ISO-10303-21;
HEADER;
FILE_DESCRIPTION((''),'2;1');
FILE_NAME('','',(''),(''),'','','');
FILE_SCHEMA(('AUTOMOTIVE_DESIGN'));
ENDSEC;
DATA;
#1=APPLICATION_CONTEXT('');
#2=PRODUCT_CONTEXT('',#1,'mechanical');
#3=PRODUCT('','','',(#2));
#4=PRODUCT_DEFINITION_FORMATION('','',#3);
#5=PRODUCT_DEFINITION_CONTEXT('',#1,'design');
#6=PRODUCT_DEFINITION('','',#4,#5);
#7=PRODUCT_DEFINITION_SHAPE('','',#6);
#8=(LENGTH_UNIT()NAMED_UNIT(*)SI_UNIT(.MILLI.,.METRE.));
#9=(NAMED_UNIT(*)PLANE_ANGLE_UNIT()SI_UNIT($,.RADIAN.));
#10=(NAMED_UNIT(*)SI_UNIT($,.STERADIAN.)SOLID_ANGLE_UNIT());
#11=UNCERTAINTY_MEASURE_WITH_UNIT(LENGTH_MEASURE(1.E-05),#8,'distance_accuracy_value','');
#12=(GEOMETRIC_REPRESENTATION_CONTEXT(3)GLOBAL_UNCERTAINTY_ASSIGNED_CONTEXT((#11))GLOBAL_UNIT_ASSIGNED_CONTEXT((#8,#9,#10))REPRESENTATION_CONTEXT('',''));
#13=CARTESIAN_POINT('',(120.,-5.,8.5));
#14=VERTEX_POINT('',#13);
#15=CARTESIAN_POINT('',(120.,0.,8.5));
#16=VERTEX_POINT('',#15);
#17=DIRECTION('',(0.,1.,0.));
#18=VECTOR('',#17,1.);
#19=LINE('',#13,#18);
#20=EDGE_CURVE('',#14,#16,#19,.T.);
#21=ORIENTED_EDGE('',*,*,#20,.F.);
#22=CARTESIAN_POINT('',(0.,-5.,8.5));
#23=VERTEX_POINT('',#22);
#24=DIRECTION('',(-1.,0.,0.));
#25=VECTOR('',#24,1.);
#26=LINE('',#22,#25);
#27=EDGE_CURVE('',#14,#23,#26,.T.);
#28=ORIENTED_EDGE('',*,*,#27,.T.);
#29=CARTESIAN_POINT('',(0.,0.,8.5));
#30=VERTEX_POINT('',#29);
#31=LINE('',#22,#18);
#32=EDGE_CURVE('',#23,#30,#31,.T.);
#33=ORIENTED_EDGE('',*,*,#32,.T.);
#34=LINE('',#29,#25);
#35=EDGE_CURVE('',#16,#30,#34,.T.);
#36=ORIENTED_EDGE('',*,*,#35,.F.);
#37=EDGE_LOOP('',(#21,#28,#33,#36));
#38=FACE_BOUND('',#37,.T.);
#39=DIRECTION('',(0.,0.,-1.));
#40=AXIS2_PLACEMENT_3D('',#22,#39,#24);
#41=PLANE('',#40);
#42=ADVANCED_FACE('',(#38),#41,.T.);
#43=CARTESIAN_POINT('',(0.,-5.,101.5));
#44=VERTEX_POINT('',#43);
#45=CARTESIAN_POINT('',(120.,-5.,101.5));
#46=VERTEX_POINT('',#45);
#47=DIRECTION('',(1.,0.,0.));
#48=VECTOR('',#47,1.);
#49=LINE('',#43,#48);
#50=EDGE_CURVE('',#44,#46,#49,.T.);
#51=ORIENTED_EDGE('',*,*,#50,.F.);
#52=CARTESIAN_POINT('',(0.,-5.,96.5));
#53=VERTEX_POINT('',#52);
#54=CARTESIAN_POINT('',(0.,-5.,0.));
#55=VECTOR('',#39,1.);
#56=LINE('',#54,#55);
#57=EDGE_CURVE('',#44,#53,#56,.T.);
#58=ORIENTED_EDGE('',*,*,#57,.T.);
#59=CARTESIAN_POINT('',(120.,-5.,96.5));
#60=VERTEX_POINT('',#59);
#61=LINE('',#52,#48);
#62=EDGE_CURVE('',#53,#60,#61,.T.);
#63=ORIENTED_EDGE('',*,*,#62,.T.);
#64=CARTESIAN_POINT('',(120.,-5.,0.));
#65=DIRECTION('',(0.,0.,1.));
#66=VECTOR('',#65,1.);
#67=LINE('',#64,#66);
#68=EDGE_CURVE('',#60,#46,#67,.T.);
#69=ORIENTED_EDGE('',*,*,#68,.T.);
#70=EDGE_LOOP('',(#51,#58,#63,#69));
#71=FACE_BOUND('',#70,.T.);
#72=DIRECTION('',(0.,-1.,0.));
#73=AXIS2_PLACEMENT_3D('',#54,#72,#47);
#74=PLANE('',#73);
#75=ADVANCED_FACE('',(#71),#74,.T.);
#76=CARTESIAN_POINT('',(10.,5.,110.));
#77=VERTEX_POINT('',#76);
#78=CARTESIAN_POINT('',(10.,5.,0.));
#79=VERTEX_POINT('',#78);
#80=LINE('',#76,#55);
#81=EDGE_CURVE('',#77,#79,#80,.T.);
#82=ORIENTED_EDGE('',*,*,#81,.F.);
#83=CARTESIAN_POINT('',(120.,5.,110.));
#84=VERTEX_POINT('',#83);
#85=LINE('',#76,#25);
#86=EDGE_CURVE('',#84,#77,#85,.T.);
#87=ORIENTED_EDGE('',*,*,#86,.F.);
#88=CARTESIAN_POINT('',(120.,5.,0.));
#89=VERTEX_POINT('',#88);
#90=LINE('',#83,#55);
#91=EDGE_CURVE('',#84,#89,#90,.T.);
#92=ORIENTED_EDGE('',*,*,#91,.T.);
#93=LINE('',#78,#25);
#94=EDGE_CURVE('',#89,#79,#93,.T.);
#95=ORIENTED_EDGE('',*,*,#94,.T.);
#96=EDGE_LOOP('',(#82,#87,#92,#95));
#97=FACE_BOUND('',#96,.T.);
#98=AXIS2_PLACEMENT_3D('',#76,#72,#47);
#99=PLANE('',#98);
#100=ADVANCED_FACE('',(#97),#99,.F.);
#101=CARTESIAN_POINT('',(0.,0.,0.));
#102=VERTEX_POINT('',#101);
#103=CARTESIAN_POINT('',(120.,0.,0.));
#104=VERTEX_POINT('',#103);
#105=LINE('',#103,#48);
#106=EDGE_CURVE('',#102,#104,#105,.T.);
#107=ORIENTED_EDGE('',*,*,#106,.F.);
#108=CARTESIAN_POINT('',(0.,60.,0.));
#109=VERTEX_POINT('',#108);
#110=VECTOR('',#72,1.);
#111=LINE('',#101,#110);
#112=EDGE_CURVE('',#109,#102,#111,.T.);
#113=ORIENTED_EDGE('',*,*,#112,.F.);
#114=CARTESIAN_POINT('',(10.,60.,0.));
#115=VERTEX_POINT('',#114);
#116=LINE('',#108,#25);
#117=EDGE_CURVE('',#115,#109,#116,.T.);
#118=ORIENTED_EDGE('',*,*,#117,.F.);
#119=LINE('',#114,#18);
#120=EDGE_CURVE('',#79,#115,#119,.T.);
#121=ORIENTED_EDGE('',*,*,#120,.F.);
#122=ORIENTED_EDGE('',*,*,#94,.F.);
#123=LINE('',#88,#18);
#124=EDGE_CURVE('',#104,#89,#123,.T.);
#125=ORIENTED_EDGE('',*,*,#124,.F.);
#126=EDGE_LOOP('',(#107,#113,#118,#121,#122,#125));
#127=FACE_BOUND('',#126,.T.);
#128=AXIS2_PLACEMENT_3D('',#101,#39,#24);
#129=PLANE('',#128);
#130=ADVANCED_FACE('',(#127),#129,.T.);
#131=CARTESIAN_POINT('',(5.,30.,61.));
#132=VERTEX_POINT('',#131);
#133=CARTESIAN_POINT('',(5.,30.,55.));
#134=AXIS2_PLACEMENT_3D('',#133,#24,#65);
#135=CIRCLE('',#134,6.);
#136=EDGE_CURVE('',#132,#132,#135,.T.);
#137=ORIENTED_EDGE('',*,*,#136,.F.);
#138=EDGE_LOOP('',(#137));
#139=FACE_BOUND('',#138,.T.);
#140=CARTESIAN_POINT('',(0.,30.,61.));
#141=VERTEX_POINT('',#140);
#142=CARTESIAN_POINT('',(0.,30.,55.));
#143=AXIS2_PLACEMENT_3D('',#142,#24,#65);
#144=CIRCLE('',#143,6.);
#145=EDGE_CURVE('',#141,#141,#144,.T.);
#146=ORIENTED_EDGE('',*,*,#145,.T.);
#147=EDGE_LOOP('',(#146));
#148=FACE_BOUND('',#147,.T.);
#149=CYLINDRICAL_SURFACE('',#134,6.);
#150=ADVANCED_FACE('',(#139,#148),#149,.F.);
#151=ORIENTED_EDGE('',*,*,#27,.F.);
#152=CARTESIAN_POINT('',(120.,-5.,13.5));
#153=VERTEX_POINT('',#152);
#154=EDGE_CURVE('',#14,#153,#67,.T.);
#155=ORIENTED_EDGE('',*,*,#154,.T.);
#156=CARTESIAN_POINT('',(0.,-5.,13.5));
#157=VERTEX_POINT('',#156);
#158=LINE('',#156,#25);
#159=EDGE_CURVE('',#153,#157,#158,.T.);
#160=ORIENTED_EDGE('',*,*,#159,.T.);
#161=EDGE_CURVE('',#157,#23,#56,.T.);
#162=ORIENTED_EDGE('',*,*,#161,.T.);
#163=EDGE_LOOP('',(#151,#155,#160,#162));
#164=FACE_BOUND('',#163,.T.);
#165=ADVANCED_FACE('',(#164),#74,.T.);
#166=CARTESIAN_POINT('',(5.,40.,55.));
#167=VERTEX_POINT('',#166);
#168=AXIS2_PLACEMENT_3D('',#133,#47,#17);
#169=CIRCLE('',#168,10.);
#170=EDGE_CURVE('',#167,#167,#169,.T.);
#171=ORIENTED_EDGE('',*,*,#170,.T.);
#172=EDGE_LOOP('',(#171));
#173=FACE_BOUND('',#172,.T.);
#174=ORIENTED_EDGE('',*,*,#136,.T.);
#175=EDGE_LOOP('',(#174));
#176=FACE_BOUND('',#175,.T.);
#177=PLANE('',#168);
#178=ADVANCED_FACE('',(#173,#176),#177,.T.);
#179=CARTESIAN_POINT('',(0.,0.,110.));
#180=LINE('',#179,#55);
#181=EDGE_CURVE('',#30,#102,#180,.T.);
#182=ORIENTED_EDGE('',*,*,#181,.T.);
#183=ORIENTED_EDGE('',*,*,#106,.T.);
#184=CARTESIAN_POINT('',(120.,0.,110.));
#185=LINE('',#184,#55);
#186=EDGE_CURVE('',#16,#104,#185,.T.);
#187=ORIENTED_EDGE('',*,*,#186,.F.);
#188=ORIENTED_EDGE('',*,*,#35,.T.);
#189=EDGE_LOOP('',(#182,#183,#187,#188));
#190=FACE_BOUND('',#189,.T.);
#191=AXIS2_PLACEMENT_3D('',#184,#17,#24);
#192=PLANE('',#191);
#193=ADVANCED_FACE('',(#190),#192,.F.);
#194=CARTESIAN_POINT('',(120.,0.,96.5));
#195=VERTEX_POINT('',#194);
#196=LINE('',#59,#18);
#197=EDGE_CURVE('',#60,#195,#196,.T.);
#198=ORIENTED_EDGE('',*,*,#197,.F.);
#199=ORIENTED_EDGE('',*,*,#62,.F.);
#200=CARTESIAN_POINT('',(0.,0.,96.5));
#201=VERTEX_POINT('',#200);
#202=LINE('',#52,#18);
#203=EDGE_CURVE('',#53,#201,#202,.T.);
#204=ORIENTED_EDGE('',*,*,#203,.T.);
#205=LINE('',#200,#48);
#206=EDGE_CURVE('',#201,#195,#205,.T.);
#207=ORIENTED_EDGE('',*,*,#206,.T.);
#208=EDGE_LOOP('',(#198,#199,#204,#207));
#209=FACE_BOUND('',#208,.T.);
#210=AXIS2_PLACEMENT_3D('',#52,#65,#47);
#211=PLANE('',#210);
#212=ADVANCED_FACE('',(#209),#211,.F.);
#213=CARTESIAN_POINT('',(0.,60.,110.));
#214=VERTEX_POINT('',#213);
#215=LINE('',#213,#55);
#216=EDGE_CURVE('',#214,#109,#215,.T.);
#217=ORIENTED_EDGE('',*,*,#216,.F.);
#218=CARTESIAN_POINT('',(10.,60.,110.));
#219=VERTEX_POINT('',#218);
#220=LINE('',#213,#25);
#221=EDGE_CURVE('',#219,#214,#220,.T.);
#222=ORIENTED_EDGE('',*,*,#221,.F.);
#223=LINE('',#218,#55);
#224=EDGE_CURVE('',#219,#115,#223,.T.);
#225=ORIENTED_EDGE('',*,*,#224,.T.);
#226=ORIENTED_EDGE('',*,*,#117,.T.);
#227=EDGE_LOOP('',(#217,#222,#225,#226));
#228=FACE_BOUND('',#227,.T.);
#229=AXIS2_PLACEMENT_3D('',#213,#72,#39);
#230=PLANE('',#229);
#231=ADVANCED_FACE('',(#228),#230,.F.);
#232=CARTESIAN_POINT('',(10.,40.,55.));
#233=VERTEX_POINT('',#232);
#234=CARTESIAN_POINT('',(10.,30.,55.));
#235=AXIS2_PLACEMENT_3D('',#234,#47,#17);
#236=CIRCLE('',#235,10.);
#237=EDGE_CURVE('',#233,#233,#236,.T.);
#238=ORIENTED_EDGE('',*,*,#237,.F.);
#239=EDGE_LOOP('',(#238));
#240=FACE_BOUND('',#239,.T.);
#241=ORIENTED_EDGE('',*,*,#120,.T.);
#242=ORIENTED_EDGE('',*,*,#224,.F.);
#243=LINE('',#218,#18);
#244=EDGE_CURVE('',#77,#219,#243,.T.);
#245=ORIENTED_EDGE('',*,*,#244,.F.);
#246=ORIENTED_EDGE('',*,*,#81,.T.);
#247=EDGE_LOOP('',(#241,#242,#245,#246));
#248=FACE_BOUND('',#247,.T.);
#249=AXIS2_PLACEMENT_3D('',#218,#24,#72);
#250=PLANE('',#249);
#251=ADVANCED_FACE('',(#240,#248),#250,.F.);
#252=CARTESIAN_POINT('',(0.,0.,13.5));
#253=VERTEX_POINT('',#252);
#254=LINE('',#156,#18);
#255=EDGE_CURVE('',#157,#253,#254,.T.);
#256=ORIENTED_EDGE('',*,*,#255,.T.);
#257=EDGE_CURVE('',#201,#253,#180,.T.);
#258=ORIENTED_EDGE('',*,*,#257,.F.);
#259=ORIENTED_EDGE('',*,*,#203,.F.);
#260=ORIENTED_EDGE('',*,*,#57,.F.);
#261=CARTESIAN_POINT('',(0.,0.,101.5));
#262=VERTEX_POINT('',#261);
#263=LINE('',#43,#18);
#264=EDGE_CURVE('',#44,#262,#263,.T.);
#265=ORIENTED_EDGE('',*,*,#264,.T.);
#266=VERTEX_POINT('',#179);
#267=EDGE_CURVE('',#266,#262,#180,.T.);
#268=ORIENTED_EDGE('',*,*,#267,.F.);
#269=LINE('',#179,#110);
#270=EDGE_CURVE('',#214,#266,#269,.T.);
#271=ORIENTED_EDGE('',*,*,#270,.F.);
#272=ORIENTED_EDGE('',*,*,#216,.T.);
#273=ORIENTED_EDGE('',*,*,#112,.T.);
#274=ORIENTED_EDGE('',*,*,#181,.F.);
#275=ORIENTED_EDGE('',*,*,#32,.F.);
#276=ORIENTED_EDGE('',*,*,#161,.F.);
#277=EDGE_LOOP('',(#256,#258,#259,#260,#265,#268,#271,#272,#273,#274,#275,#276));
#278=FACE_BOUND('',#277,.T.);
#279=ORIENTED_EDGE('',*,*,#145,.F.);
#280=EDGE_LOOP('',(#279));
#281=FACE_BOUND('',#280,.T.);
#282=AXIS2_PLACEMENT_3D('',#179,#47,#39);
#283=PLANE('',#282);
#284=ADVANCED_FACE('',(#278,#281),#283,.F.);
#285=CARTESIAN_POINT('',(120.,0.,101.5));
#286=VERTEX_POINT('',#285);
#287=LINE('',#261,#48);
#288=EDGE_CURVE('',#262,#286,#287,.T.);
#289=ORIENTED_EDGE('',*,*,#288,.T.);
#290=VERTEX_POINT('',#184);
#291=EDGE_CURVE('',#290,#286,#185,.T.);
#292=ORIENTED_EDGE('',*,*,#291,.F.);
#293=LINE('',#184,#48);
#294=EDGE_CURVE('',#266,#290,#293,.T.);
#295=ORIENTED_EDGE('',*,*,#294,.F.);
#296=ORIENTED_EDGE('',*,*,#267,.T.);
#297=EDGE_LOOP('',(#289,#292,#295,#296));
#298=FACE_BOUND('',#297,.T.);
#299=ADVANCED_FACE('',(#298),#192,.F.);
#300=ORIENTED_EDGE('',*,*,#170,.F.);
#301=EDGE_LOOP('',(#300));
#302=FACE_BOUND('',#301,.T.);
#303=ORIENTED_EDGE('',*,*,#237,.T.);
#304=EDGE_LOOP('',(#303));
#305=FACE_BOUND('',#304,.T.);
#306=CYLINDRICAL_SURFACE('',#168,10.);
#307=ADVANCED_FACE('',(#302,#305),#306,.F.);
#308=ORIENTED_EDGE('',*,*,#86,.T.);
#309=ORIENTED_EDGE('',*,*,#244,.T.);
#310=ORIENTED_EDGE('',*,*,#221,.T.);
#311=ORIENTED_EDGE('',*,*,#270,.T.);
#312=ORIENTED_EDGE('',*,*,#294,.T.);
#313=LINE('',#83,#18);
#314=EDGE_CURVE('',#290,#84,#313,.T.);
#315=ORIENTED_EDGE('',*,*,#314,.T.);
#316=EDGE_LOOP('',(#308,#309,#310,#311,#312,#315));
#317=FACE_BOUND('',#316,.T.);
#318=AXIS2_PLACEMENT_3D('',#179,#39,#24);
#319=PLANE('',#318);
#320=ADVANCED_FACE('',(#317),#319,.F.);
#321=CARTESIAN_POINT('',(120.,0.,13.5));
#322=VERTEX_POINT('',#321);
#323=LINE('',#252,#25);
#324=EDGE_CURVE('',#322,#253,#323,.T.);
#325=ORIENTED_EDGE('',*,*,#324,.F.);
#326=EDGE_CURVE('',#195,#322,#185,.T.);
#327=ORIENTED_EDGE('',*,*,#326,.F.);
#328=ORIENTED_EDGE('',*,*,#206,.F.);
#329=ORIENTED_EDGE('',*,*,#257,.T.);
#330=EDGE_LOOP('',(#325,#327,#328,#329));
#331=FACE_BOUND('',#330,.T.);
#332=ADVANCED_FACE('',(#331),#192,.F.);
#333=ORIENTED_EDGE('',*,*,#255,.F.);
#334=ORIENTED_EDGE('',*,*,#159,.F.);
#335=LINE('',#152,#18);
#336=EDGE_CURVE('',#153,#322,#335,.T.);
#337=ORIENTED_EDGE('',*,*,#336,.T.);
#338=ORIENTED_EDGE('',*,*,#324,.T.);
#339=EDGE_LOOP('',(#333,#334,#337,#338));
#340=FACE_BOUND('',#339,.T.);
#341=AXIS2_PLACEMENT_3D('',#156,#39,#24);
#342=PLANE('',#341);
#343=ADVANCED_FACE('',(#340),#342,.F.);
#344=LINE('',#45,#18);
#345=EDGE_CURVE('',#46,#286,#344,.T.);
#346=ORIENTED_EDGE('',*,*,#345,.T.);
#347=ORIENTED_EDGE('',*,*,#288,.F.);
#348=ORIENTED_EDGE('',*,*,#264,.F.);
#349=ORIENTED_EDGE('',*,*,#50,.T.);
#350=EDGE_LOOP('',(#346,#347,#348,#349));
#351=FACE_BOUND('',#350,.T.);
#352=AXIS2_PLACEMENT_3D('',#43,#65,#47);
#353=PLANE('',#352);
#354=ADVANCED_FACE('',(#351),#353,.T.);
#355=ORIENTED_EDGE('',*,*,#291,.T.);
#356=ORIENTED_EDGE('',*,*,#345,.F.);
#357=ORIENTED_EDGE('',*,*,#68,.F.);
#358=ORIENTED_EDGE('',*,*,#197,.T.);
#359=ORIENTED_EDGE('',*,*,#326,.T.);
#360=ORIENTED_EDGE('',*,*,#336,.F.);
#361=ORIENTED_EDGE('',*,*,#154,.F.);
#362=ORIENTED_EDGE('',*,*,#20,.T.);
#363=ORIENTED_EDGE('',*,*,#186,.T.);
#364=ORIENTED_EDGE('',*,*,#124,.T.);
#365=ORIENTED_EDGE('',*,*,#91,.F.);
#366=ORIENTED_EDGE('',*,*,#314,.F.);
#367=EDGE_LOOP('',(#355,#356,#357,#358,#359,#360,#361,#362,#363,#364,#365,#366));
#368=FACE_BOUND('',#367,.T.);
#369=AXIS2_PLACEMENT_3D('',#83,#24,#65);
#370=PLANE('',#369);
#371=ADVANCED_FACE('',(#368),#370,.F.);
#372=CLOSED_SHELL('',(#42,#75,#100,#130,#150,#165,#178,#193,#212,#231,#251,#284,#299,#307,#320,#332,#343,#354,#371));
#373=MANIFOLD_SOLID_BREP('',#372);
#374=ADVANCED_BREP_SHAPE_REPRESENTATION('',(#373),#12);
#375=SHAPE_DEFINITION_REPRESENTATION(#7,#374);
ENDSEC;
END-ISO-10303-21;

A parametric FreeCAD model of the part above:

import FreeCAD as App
import Part
import Sketcher

V = App.Vector

doc = App.newDocument("Part")
body = doc.addObject("PartDesign::Body", "Body")

# Sketch on XY plane
sketch1 = doc.addObject("Sketcher::SketchObject", "Sketch")
body.addObject(sketch1)
sketch1.AttachmentSupport = (doc.XY_Plane, [""])
sketch1.MapMode = "FlatFace"
sketch1.addGeometry(Part.LineSegment(V(0, 60, 0), V(0, 0, 0)), False)
sketch1.addGeometry(Part.LineSegment(V(0, 0, 0), V(120, 0, 0)), False)
sketch1.addGeometry(Part.LineSegment(V(120, 0, 0), V(120, 5, 0)), False)
sketch1.addGeometry(Part.LineSegment(V(120, 5, 0), V(10, 5, 0)), False)
sketch1.addGeometry(Part.LineSegment(V(10, 5, 0), V(10, 60, 0)), False)
sketch1.addGeometry(Part.LineSegment(V(10, 60, 0), V(0, 60, 0)), False)
sketch1.addConstraint(Sketcher.Constraint("Coincident", 0, 2, 1, 1))
sketch1.addConstraint(Sketcher.Constraint("Coincident", 1, 2, 2, 1))
sketch1.addConstraint(Sketcher.Constraint("Coincident", 2, 2, 3, 1))
sketch1.addConstraint(Sketcher.Constraint("Coincident", 3, 2, 4, 1))
sketch1.addConstraint(Sketcher.Constraint("Coincident", 4, 2, 5, 1))
sketch1.addConstraint(Sketcher.Constraint("Coincident", 5, 2, 0, 1))
sketch1.addConstraint(Sketcher.Constraint("Vertical", 0))
sketch1.addConstraint(Sketcher.Constraint("Horizontal", 1))
sketch1.addConstraint(Sketcher.Constraint("Vertical", 2))
sketch1.addConstraint(Sketcher.Constraint("Horizontal", 3))
sketch1.addConstraint(Sketcher.Constraint("Vertical", 4))
sketch1.addConstraint(Sketcher.Constraint("Horizontal", 5))
sketch1.addConstraint(Sketcher.Constraint("Coincident", 0, 2, -1, 1))
sketch1.addConstraint(Sketcher.Constraint("DistanceX", 1, 1, 1, 2, 120.0))
sketch1.addConstraint(Sketcher.Constraint("DistanceX", 3, 2, 3, 1, 110.0))
sketch1.addConstraint(Sketcher.Constraint("DistanceY", 0, 2, 0, 1, 60.0))
sketch1.addConstraint(Sketcher.Constraint("DistanceY", 2, 1, 2, 2, 5.0))
pad1 = doc.addObject("PartDesign::Pad", "Pad")
body.addObject(pad1)
pad1.Profile = sketch1
pad1.Length = 110

# Sketch on XZ plane
sketch2 = doc.addObject("Sketcher::SketchObject", "Sketch001")
body.addObject(sketch2)
sketch2.AttachmentSupport = (doc.XZ_Plane, [""])
sketch2.MapMode = "FlatFace"
sketch2.addGeometry(Part.LineSegment(V(0, 101.5, 0), V(0, 96.5, 0)), False)
sketch2.addGeometry(Part.LineSegment(V(0, 96.5, 0), V(120, 96.5, 0)), False)
sketch2.addGeometry(Part.LineSegment(V(120, 96.5, 0), V(120, 101.5, 0)), False)
sketch2.addGeometry(Part.LineSegment(V(120, 101.5, 0), V(0, 101.5, 0)), False)
sketch2.addGeometry(Part.LineSegment(V(120, 13.5, 0), V(0, 13.5, 0)), False)
sketch2.addGeometry(Part.LineSegment(V(0, 13.5, 0), V(0, 8.5, 0)), False)
sketch2.addGeometry(Part.LineSegment(V(0, 8.5, 0), V(120, 8.5, 0)), False)
sketch2.addGeometry(Part.LineSegment(V(120, 8.5, 0), V(120, 13.5, 0)), False)
sketch2.addConstraint(Sketcher.Constraint("Coincident", 0, 2, 1, 1))
sketch2.addConstraint(Sketcher.Constraint("Coincident", 1, 2, 2, 1))
sketch2.addConstraint(Sketcher.Constraint("Coincident", 2, 2, 3, 1))
sketch2.addConstraint(Sketcher.Constraint("Coincident", 3, 2, 0, 1))
sketch2.addConstraint(Sketcher.Constraint("Coincident", 4, 2, 5, 1))
sketch2.addConstraint(Sketcher.Constraint("Coincident", 5, 2, 6, 1))
sketch2.addConstraint(Sketcher.Constraint("Coincident", 6, 2, 7, 1))
sketch2.addConstraint(Sketcher.Constraint("Coincident", 7, 2, 4, 1))
sketch2.addConstraint(Sketcher.Constraint("Vertical", 0))
sketch2.addConstraint(Sketcher.Constraint("Horizontal", 1))
sketch2.addConstraint(Sketcher.Constraint("Vertical", 2))
sketch2.addConstraint(Sketcher.Constraint("Horizontal", 3))
sketch2.addConstraint(Sketcher.Constraint("Horizontal", 4))
sketch2.addConstraint(Sketcher.Constraint("Vertical", 5))
sketch2.addConstraint(Sketcher.Constraint("Horizontal", 6))
sketch2.addConstraint(Sketcher.Constraint("Vertical", 7))
sketch2.addConstraint(Sketcher.Constraint("PointOnObject", 0, 2, -2))
sketch2.addConstraint(Sketcher.Constraint("PointOnObject", 4, 2, -2))
sketch2.addConstraint(Sketcher.Constraint("Vertical", 2, 2, 6, 2))
sketch2.addConstraint(Sketcher.Constraint("Equal", 2, 5))
sketch2.addConstraint(Sketcher.Constraint("DistanceX", 1, 1, 1, 2, 120.0))
sketch2.addConstraint(Sketcher.Constraint("DistanceY", 0, 2, 0, 1, 5.0))
sketch2.addConstraint(Sketcher.Constraint("DistanceY", 4, 2, 0, 2, 83.0))
sketch2.addConstraint(Sketcher.Constraint("DistanceY", -1, 1, 0, 2, 96.5))
pad2 = doc.addObject("PartDesign::Pad", "Pad001")
body.addObject(pad2)
pad2.Profile = sketch2
pad2.Length = 5

# Sketch on YZ plane
sketch3 = doc.addObject("Sketcher::SketchObject", "Sketch002")
body.addObject(sketch3)
sketch3.AttachmentSupport = (doc.YZ_Plane, [""])
sketch3.MapMode = "FlatFace"
sketch3.addGeometry(Part.Circle(V(30, 55, 0), V(0, 0, 1), 6), False)
sketch3.addConstraint(Sketcher.Constraint("Diameter", 0, 12.0))
sketch3.addConstraint(Sketcher.Constraint("DistanceX", -1, 1, 0, 3, 30.0))
sketch3.addConstraint(Sketcher.Constraint("DistanceY", -1, 1, 0, 3, 55.0))
pocket1 = doc.addObject("PartDesign::Pocket", "Pocket")
body.addObject(pocket1)
pocket1.Profile = sketch3
pocket1.Length = 5
pocket1.Reversed = True

# Sketch on YZ plane
sketch4 = doc.addObject("Sketcher::SketchObject", "Sketch003")
body.addObject(sketch4)
sketch4.AttachmentSupport = (doc.YZ_Plane, [""])
sketch4.MapMode = "FlatFace"
sketch4.AttachmentOffset = App.Placement(V(0, 0, 10), App.Rotation())
sketch4.addGeometry(Part.Circle(V(30, 55, 0), V(0, 0, 1), 10), False)
sketch4.addConstraint(Sketcher.Constraint("Diameter", 0, 20.0))
sketch4.addConstraint(Sketcher.Constraint("DistanceX", -1, 1, 0, 3, 30.0))
sketch4.addConstraint(Sketcher.Constraint("DistanceY", -1, 1, 0, 3, 55.0))
pocket2 = doc.addObject("PartDesign::Pocket", "Pocket001")
body.addObject(pocket2)
pocket2.Profile = sketch4
pocket2.Length = 5

doc.recompute()
